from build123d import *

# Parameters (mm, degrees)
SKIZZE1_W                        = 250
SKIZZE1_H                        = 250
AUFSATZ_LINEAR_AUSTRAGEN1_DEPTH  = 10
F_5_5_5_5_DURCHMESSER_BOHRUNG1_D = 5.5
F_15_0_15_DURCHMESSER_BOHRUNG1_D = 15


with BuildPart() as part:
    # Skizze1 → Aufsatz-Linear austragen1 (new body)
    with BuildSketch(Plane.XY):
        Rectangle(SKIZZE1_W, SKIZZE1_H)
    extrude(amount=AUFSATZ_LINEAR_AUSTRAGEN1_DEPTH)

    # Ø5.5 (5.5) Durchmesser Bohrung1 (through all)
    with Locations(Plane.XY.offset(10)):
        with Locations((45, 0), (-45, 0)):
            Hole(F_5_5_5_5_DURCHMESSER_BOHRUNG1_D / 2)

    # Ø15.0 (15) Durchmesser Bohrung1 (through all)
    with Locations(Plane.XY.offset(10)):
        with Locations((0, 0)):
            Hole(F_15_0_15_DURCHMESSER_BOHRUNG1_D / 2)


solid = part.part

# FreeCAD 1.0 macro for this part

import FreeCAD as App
import Part
import Sketcher
Q = App.Units.Quantity

doc = App.newDocument("Part")
body = doc.addObject("PartDesign::Body", "Body")

sketch1 = body.newObject("Sketcher::SketchObject", "Sketch")
sketch1.AttachmentSupport = (doc.getObject("XY_Plane"), [""])
sketch1.MapMode = "FlatFace"
sketch1.addGeometry(Part.LineSegment(App.Vector(-125, 125, 0), App.Vector(-125, -125, 0)), False)
sketch1.addGeometry(Part.LineSegment(App.Vector(-125, -125, 0), App.Vector(125, -125, 0)), False)
sketch1.addGeometry(Part.LineSegment(App.Vector(125, -125, 0), App.Vector(125, 125, 0)), False)
sketch1.addGeometry(Part.LineSegment(App.Vector(125, 125, 0), App.Vector(-125, 125, 0)), False)
sketch1.addConstraint(Sketcher.Constraint("Coincident", 0, 2, 1, 1))
sketch1.addConstraint(Sketcher.Constraint("Coincident", 1, 2, 2, 1))
sketch1.addConstraint(Sketcher.Constraint("Coincident", 2, 2, 3, 1))
sketch1.addConstraint(Sketcher.Constraint("Coincident", 3, 2, 0, 1))
sketch1.addConstraint(Sketcher.Constraint("Vertical", 0))
sketch1.addConstraint(Sketcher.Constraint("Horizontal", 1))
sketch1.addConstraint(Sketcher.Constraint("Vertical", 2))
sketch1.addConstraint(Sketcher.Constraint("Horizontal", 3))
sketch1.addConstraint(Sketcher.Constraint("Symmetric", 0, 2, 2, 2, -1, 1))
sketch1.addConstraint(Sketcher.Constraint("Equal", 3, 0))
sketch1.addConstraint(Sketcher.Constraint("DistanceX", 1, 1, 1, 2, Q("250 mm")))
pad1 = body.newObject("PartDesign::Pad", "Pad")
pad1.Profile = sketch1
pad1.Length = 10

sketch2 = body.newObject("Sketcher::SketchObject", "Sketch001")
sketch2.AttachmentSupport = (doc.getObject("XY_Plane"), [""])
sketch2.MapMode = "FlatFace"
sketch2.AttachmentOffset = App.Placement(App.Vector(0, 0, 10), App.Rotation())
sketch2.addGeometry(Part.Circle(App.Vector(45, 0, 0), App.Vector(0, 0, 1), 2.75), False)
sketch2.addGeometry(Part.Circle(App.Vector(-45, 0, 0), App.Vector(0, 0, 1), 2.75), False)
sketch2.addConstraint(Sketcher.Constraint("Equal", 0, 1))
sketch2.addConstraint(Sketcher.Constraint("Symmetric", 0, 3, 1, 3, -1, 1))
sketch2.addConstraint(Sketcher.Constraint("PointOnObject", 0, 3, -1))
sketch2.addConstraint(Sketcher.Constraint("Diameter", 0, Q("5.5 mm")))
sketch2.addConstraint(Sketcher.Constraint("DistanceX", -1, 1, 0, 3, Q("45 mm")))
doc.recompute()
hole = body.newObject("PartDesign::Hole", "Hole")
hole.Profile = sketch2
hole.ThreadType = "None"
hole.Diameter = 5.5
hole.DepthType = "ThroughAll"

sketch3 = body.newObject("Sketcher::SketchObject", "Sketch002")
sketch3.AttachmentSupport = (doc.getObject("XY_Plane"), [""])
sketch3.MapMode = "FlatFace"
sketch3.AttachmentOffset = App.Placement(App.Vector(0, 0, 10), App.Rotation())
sketch3.addGeometry(Part.Circle(App.Vector(0, 0, 0), App.Vector(0, 0, 1), 7.5), False)
sketch3.addConstraint(Sketcher.Constraint("Coincident", 0, 3, -1, 1))
sketch3.addConstraint(Sketcher.Constraint("Diameter", 0, Q("15 mm")))
doc.recompute()
hole2 = body.newObject("PartDesign::Hole", "Hole001")
hole2.Profile = sketch3
hole2.ThreadType = "None"
hole2.Diameter = 15
hole2.DepthType = "ThroughAll"

doc.recompute()
